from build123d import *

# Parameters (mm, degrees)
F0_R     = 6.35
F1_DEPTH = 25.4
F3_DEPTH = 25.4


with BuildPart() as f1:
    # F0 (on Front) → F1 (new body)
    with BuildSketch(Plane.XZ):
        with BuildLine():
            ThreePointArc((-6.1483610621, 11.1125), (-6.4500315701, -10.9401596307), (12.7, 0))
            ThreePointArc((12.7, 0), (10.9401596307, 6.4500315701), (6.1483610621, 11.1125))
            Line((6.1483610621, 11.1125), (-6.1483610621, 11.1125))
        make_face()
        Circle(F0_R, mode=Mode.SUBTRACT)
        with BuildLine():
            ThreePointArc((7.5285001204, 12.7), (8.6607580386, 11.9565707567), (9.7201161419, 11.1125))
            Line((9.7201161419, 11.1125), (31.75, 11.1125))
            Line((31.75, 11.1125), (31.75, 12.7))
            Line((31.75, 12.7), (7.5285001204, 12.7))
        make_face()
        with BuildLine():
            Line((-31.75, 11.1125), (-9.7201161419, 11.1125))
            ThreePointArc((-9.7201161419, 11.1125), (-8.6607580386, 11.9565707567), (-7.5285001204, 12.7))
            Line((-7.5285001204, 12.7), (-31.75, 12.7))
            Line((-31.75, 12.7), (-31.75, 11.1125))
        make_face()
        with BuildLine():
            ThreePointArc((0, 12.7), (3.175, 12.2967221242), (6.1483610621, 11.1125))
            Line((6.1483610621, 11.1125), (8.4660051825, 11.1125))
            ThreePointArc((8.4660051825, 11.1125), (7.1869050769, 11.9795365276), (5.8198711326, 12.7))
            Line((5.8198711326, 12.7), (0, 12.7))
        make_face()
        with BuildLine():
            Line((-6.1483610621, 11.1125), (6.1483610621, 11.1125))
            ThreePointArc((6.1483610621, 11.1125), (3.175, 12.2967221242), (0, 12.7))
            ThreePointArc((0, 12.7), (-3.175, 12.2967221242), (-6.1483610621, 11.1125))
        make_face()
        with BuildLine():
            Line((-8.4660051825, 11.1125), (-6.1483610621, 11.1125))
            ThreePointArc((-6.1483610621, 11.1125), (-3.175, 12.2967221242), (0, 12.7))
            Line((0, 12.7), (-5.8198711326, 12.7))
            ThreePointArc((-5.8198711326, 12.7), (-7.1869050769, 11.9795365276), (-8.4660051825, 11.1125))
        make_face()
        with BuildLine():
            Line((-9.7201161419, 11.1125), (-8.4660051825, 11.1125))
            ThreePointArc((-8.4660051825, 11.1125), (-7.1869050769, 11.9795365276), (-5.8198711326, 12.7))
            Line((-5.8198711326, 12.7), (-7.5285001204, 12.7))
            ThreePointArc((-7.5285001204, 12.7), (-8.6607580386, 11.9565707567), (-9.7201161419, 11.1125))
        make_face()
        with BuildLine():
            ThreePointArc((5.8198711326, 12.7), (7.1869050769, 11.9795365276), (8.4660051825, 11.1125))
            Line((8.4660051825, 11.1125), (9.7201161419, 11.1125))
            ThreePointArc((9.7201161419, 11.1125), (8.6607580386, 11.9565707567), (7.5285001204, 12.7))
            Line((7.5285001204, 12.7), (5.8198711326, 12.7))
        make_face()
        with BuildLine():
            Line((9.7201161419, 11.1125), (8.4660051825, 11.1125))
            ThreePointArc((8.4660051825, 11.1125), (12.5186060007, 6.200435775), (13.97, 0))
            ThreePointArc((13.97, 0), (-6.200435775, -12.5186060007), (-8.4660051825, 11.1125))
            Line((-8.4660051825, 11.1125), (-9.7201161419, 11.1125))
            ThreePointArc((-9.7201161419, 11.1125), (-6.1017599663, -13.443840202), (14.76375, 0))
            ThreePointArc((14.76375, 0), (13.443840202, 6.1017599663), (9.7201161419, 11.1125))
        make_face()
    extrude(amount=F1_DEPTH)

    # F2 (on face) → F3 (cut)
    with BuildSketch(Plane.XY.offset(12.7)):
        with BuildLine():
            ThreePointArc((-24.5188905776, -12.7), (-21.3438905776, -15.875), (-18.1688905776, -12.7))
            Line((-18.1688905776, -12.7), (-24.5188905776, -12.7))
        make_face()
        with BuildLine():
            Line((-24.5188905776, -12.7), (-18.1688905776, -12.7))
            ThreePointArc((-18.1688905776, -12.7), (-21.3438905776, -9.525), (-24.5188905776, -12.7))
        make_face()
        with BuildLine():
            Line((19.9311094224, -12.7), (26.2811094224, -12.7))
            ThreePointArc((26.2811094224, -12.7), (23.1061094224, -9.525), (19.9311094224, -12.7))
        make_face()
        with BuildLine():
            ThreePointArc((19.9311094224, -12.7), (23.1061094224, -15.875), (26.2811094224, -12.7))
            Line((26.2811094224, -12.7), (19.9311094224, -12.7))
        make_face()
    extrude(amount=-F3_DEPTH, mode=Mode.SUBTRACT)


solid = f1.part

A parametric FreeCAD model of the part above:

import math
import FreeCAD as App
import Part
import Sketcher
from FreeCAD import Vector
Q = App.Units.Quantity

doc = App.newDocument("Part")
body = doc.addObject("PartDesign::Body", "Body")

# Sketch on XZ plane
sketch1 = body.newObject("Sketcher::SketchObject", "Sketch")
sketch1.AttachmentSupport = (doc.getObject("XZ_Plane"), [""])
sketch1.MapMode = "FlatFace"
sketch1.addGeometry([
    Part.LineSegment(Vector(9.7, 11.1, 0), Vector(31.8, 11.1, 0)),  # 0
    Part.LineSegment(Vector(31.8, 11.1, 0), Vector(31.8, 12.7, 0)),  # 1
    Part.LineSegment(Vector(31.8, 12.7, 0), Vector(-31.8, 12.7, 0)),  # 2
    Part.LineSegment(Vector(-31.8, 12.7, 0), Vector(-31.8, 11.1, 0)),  # 3
    Part.LineSegment(Vector(-31.8, 11.1, 0), Vector(-9.7, 11.1, 0)),  # 4
    Part.ArcOfCircle(Part.Circle(Vector(0, 0, 0), Vector(0, 0, 1), 14.8), math.radians(131), math.radians(360)),  # 5
    Part.ArcOfCircle(Part.Circle(Vector(0, 0, 0), Vector(0, 0, 1), 14.8), math.radians(0), math.radians(49)),  # 6
    Part.ArcOfCircle(Part.Circle(Vector(0, 0, 0), Vector(0, 0, 1), 12.7), math.radians(119), math.radians(360)),  # 7
    Part.ArcOfCircle(Part.Circle(Vector(0, 0, 0), Vector(0, 0, 1), 12.7), math.radians(0), math.radians(61)),  # 8
    Part.LineSegment(Vector(6.1, 11.1, 0), Vector(8.5, 11.1, 0)),  # 9
    Part.ArcOfCircle(Part.Circle(Vector(0, 0, 0), Vector(0, 0, 1), 14), math.radians(0), math.radians(53)),  # 10
    Part.ArcOfCircle(Part.Circle(Vector(0, 0, 0), Vector(0, 0, 1), 14), math.radians(127), math.radians(360)),  # 11
    Part.LineSegment(Vector(-8.5, 11.1, 0), Vector(-6.1, 11.1, 0)),  # 12
    Part.Circle(Vector(0, 0, 0), Vector(0, 0, 1), 6.3),  # 13
], False)
sketch1.addConstraint([
    Sketcher.Constraint("Coincident", 0, 2, 1, 1),
    Sketcher.Constraint("Coincident", 1, 2, 2, 1),
    Sketcher.Constraint("Coincident", 2, 2, 3, 1),
    Sketcher.Constraint("Coincident", 3, 2, 4, 1),
    Sketcher.Constraint("Coincident", 4, 2, 5, 1),
    Sketcher.Constraint("Tangent", 5, 2, 6, 1),
    Sketcher.Constraint("Coincident", 6, 2, 0, 1),
    Sketcher.Constraint("Tangent", 7, 2, 8, 1),
    Sketcher.Constraint("Coincident", 8, 2, 9, 1),
    Sketcher.Constraint("Coincident", 9, 2, 10, 2),
    Sketcher.Constraint("Tangent", 10, 1, 11, 2),
    Sketcher.Constraint("Coincident", 11, 1, 12, 1),
    Sketcher.Constraint("Coincident", 12, 2, 7, 1),
    Sketcher.Constraint("Horizontal", 0),
    Sketcher.Constraint("Vertical", 1),
    Sketcher.Constraint("Horizontal", 2),
    Sketcher.Constraint("Vertical", 3),
    Sketcher.Constraint("Horizontal", 4),
    Sketcher.Constraint("Horizontal", 9),
    Sketcher.Constraint("Horizontal", 12),
    Sketcher.Constraint("Coincident", 5, 3, -1, 1),
    Sketcher.Constraint("Coincident", 7, 3, -1, 1),
    Sketcher.Constraint("Coincident", 10, 3, -1, 1),
    Sketcher.Constraint("Coincident", 13, 3, -1, 1),
    Sketcher.Constraint("Equal", 5, 6),
    Sketcher.Constraint("Equal", 7, 8),
    Sketcher.Constraint("Equal", 10, 11),
    Sketcher.Constraint("Symmetric", 0, 2, 3, 2, -2),
    Sketcher.Constraint("PointOnObject", 5, 2, -1),
    Sketcher.Constraint("PointOnObject", 7, 2, -1),
    Sketcher.Constraint("PointOnObject", 10, 1, -1),
    Sketcher.Constraint("Horizontal", 6, 2, 8, 2),
    Sketcher.Constraint("Horizontal", 9, 2, 11, 1),
    Sketcher.Constraint("Diameter", 13, Q("0.5 in")),
    Sketcher.Constraint("Radius", 7, Q("0.5 in")),
    Sketcher.Constraint("Radius", 10, Q("0.55 in")),
    Sketcher.Constraint("DistanceX", 2, 2, 2, 1, Q("2.5 in")),
    Sketcher.Constraint("DistanceY", -1, 1, 1, 2, Q("0.5 in")),
    Sketcher.Constraint("DistanceY", 1, 1, 1, 2, Q("0.0625 in")),
    Sketcher.Constraint("Radius", 5, Q("14.76375 mm")),
])
pad1 = body.newObject("PartDesign::Pad", "Pad")
pad1.Profile = sketch1
pad1.Length = Q("1 in")

# Sketch on XY plane
sketch2 = body.newObject("Sketcher::SketchObject", "Sketch001")
sketch2.AttachmentSupport = (doc.getObject("XY_Plane"), [""])
sketch2.MapMode = "FlatFace"
sketch2.AttachmentOffset = App.Placement(Vector(0, 0, 0.5 * 25.4), App.Rotation())
sketch2.addGeometry([
    Part.Circle(Vector(-21.3, -12.7, 0), Vector(0, 0, 1), 3.2),
    Part.Circle(Vector(23.1, -12.7, 0), Vector(0, 0, 1), 3.2),
], False)
sketch2.addConstraint([
    Sketcher.Constraint("Equal", 0, 1),
    Sketcher.Constraint("Horizontal", 0, 3, 1, 3),
    Sketcher.Constraint("Diameter", 0, Q("0.25 in")),
    Sketcher.Constraint("DistanceY", 0, 3, -1, 1, Q("0.5 in")),
    Sketcher.Constraint("DistanceX", 0, 3, 1, 3, Q("1.75 in")),
    Sketcher.Constraint("DistanceX", 0, 3, -1, 1, Q("21.343891 mm")),
])
pocket1 = body.newObject("PartDesign::Pocket", "Pocket")
pocket1.Profile = sketch2
pocket1.Length = Q("1 in")

doc.recompute()
